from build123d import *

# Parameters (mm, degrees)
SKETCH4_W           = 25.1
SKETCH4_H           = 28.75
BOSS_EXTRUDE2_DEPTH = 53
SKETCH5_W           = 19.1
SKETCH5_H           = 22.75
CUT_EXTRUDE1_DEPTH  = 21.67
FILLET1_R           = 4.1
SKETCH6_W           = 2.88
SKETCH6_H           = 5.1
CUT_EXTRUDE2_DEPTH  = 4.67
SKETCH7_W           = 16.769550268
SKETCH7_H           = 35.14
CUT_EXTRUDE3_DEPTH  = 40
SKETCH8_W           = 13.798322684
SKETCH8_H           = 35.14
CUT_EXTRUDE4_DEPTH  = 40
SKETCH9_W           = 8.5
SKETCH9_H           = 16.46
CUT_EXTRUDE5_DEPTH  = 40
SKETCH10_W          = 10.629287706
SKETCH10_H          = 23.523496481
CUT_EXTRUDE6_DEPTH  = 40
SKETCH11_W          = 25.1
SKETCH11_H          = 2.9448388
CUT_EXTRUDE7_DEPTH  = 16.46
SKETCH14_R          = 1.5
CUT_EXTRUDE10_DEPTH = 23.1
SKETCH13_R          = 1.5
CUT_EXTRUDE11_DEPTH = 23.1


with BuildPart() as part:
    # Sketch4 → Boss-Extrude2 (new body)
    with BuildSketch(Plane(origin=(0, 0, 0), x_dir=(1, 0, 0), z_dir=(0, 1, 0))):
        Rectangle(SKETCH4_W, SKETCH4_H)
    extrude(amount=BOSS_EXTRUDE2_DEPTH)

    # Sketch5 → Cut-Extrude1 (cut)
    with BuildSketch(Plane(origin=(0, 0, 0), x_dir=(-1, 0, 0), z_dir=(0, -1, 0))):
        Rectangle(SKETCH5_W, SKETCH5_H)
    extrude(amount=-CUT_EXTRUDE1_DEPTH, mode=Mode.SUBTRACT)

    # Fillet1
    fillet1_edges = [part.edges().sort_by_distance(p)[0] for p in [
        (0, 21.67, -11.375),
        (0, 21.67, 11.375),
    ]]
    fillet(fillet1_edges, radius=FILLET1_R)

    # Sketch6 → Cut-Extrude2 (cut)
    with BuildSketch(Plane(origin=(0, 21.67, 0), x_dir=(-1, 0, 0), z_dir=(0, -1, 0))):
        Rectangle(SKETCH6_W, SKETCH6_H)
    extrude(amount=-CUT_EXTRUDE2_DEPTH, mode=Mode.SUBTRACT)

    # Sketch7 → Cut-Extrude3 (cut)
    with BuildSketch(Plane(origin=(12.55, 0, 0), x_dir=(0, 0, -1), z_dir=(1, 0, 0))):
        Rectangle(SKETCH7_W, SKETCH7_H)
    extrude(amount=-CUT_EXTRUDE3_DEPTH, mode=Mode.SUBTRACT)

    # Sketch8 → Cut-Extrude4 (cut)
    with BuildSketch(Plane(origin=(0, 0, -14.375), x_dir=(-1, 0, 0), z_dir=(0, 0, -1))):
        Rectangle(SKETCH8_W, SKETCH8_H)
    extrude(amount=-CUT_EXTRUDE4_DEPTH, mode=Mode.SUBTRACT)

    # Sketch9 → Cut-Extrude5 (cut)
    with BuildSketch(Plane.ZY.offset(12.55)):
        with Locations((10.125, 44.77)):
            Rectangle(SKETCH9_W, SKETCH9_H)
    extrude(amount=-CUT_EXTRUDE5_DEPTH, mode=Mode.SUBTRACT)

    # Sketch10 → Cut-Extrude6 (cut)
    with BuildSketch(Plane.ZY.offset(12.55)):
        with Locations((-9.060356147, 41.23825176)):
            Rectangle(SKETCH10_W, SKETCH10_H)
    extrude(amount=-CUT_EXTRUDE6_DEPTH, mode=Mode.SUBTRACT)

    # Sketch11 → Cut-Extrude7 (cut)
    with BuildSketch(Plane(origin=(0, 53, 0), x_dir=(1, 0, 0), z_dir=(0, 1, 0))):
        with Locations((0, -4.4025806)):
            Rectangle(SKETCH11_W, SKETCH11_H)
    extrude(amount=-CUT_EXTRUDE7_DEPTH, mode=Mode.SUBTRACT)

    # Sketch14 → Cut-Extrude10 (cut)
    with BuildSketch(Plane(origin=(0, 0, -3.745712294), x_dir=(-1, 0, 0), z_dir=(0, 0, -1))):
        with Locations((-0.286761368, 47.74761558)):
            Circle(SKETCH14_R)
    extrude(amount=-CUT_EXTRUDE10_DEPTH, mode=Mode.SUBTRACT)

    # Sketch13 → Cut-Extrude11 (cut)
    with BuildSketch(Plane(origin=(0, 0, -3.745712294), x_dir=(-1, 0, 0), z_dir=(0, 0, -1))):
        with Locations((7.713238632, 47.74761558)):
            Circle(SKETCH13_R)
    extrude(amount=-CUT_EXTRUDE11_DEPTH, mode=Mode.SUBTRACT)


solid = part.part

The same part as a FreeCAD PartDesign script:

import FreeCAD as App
import Part
import Sketcher
Q = App.Units.Quantity


def edges_at(feature, points):
    """Names of the edges that pass closest to the given points."""
    edges = feature.Shape.Edges
    near = lambda p: min(range(len(edges)), key=lambda i: edges[i].distToShape(Part.Vertex(*p))[0])
    return sorted({f"Edge{near(p) + 1}" for p in points})


def add_polygon(sketch, points):
    """Adds a closed chain of lines whose ends are joined by coincident constraints."""
    first, n = sketch.GeometryCount, len(points)
    for a, b in zip(points, points[1:] + points[:1]):
        sketch.addGeometry(Part.LineSegment(App.Vector(*a, 0), App.Vector(*b, 0)), False)
    for i in range(n):
        sketch.addConstraint(Sketcher.Constraint("Coincident", first + i, 2, first + (i + 1) % n, 1))

doc = App.newDocument("Part")
body = doc.addObject("PartDesign::Body", "Body")

# Sketch on XZ plane
sketch1 = body.newObject("Sketcher::SketchObject", "Sketch")
sketch1.AttachmentSupport = (doc.getObject("XZ_Plane"), [""])
sketch1.MapMode = "FlatFace"
add_polygon(sketch1, [(-13, -14), (-13, 14), (13, 14), (13, -14)])  # lines 0-3
sketch1.addConstraint([
    Sketcher.Constraint("Vertical", 0),
    Sketcher.Constraint("Horizontal", 1),
    Sketcher.Constraint("Vertical", 2),
    Sketcher.Constraint("Horizontal", 3),
    Sketcher.Constraint("Symmetric", 0, 2, 2, 2, -1, 1),
    Sketcher.Constraint("DistanceX", 1, 1, 1, 2, Q("25.1 mm")),
    Sketcher.Constraint("DistanceY", 0, 1, 0, 2, Q("28.75 mm")),
])
pad1 = body.newObject("PartDesign::Pad", "Pad")
pad1.Profile = sketch1
pad1.Length = 53
pad1.Reversed = True

# Sketch on XZ plane
sketch2 = body.newObject("Sketcher::SketchObject", "Sketch001")
sketch2.AttachmentSupport = (doc.getObject("XZ_Plane"), [""])
sketch2.MapMode = "FlatFace"
add_polygon(sketch2, [(10, -11), (10, 11), (-10, 11), (-10, -11)])  # lines 0-3
sketch2.addConstraint([
    Sketcher.Constraint("Vertical", 0),
    Sketcher.Constraint("Horizontal", 1),
    Sketcher.Constraint("Vertical", 2),
    Sketcher.Constraint("Horizontal", 3),
    Sketcher.Constraint("Symmetric", 0, 2, 2, 2, -1, 1),
    Sketcher.Constraint("DistanceX", 1, 2, 1, 1, Q("19.1 mm")),
    Sketcher.Constraint("DistanceY", 0, 1, 0, 2, Q("22.75 mm")),
])
pocket1 = body.newObject("PartDesign::Pocket", "Pocket")
pocket1.Profile = sketch2
pocket1.Length = 21.67
doc.recompute()

fillet = body.newObject("PartDesign::Fillet", "Fillet")
fillet.Base = (pocket1, edges_at(pocket1, [(0, 21.67, -11.375), (0, 21.67, 11.375)]))
fillet.Radius = 4.1

# Sketch on XZ plane
sketch3 = body.newObject("Sketcher::SketchObject", "Sketch002")
sketch3.AttachmentSupport = (doc.getObject("XZ_Plane"), [""])
sketch3.MapMode = "FlatFace"
sketch3.AttachmentOffset = App.Placement(App.Vector(0, 0, -21.67), App.Rotation())
add_polygon(sketch3, [(1.4, -2.5), (1.4, 2.5), (-1.4, 2.5), (-1.4, -2.5)])  # lines 0-3
sketch3.addConstraint([
    Sketcher.Constraint("Vertical", 0),
    Sketcher.Constraint("Horizontal", 1),
    Sketcher.Constraint("Vertical", 2),
    Sketcher.Constraint("Horizontal", 3),
    Sketcher.Constraint("Symmetric", 0, 2, 2, 2, -1, 1),
    Sketcher.Constraint("DistanceY", 0, 1, 0, 2, Q("5.1 mm")),
    Sketcher.Constraint("DistanceX", 1, 2, 1, 1, Q("2.88 mm")),
])
pocket2 = body.newObject("PartDesign::Pocket", "Pocket001")
pocket2.Profile = sketch3
pocket2.Length = 4.67

# Sketch on YZ plane
sketch4 = body.newObject("Sketcher::SketchObject", "Sketch003")
sketch4.AttachmentSupport = (doc.getObject("YZ_Plane"), [""])
sketch4.MapMode = "FlatFace"
sketch4.AttachmentOffset = App.Placement(App.Vector(0, 0, 12.55), App.Rotation())
add_polygon(sketch4, [(18, 8), (-18, 8), (-18, -8), (18, -8)])  # lines 0-3
sketch4.addConstraint([
    Sketcher.Constraint("Horizontal", 0),
    Sketcher.Constraint("Vertical", 1),
    Sketcher.Constraint("Horizontal", 2),
    Sketcher.Constraint("Vertical", 3),
    Sketcher.Constraint("Symmetric", 0, 2, 2, 2, -1, 1),
    Sketcher.Constraint("DistanceX", 0, 2, 0, 1, Q("35.14 mm")),
    Sketcher.Constraint("DistanceY", 1, 2, 1, 1, Q("16.76955 mm")),
])
pocket3 = body.newObject("PartDesign::Pocket", "Pocket002")
pocket3.Profile = sketch4
pocket3.Length = 40

# Sketch on XY plane
sketch5 = body.newObject("Sketcher::SketchObject", "Sketch004")
sketch5.AttachmentSupport = (doc.getObject("XY_Plane"), [""])
sketch5.MapMode = "FlatFace"
sketch5.AttachmentOffset = App.Placement(App.Vector(0, 0, -14.375), App.Rotation())
add_polygon(sketch5, [(7, 18), (7, -18), (-7, -18), (-7, 18)])  # lines 0-3
sketch5.addConstraint([
    Sketcher.Constraint("Vertical", 0),
    Sketcher.Constraint("Horizontal", 1),
    Sketcher.Constraint("Vertical", 2),
    Sketcher.Constraint("Horizontal", 3),
    Sketcher.Constraint("Symmetric", 0, 2, 2, 2, -1, 1),
    Sketcher.Constraint("DistanceY", 0, 2, 0, 1, Q("35.14 mm")),
    Sketcher.Constraint("DistanceX", 1, 2, 1, 1, Q("13.798323 mm")),
])
pocket4 = body.newObject("PartDesign::Pocket", "Pocket003")
pocket4.Profile = sketch5
pocket4.Length = 40
pocket4.Reversed = True

# Sketch on YZ plane
sketch6 = body.newObject("Sketcher::SketchObject", "Sketch005")
sketch6.AttachmentSupport = (doc.getObject("YZ_Plane"), [""])
sketch6.MapMode = "FlatFace"
sketch6.AttachmentOffset = App.Placement(App.Vector(0, 0, -12.55), App.Rotation())
add_polygon(sketch6, [(53, 6), (37, 6), (37, 14), (53, 14)])  # lines 0-3
sketch6.addConstraint([
    Sketcher.Constraint("Horizontal", 0),
    Sketcher.Constraint("Vertical", 1),
    Sketcher.Constraint("Horizontal", 2),
    Sketcher.Constraint("Vertical", 3),
    Sketcher.Constraint("DistanceY", 1, 1, 1, 2, Q("8.5 mm")),
    Sketcher.Constraint("DistanceX", -1, 1, 2, 2, Q("53 mm")),
    Sketcher.Constraint("DistanceX", 0, 2, 0, 1, Q("16.46 mm")),
    Sketcher.Constraint("DistanceY", -1, 1, 0, 2, Q("5.875 mm")),
])
pocket5 = body.newObject("PartDesign::Pocket", "Pocket004")
pocket5.Profile = sketch6
pocket5.Length = 40
pocket5.Reversed = True

# Sketch on YZ plane
sketch7 = body.newObject("Sketcher::SketchObject", "Sketch006")
sketch7.AttachmentSupport = (doc.getObject("YZ_Plane"), [""])
sketch7.MapMode = "FlatFace"
sketch7.AttachmentOffset = App.Placement(App.Vector(0, 0, -12.55), App.Rotation())
add_polygon(sketch7, [(53, -14), (29, -14), (29, -4), (53, -4)])  # lines 0-3
sketch7.addConstraint([
    Sketcher.Constraint("Horizontal", 0),
    Sketcher.Constraint("Vertical", 1),
    Sketcher.Constraint("Horizontal", 2),
    Sketcher.Constraint("Vertical", 3),
    Sketcher.Constraint("DistanceX", -1, 1, 2, 2, Q("53 mm")),
    Sketcher.Constraint("DistanceY", 0, 2, -1, 1, Q("14.375 mm")),
    Sketcher.Constraint("DistanceX", 0, 2, 0, 1, Q("23.523496 mm")),
    Sketcher.Constraint("DistanceY", 1, 1, 1, 2, Q("10.629288 mm")),
])
pocket6 = body.newObject("PartDesign::Pocket", "Pocket005")
pocket6.Profile = sketch7
pocket6.Length = 40
pocket6.Reversed = True

# Sketch on XZ plane
sketch8 = body.newObject("Sketcher::SketchObject", "Sketch007")
sketch8.AttachmentSupport = (doc.getObject("XZ_Plane"), [""])
sketch8.MapMode = "FlatFace"
sketch8.AttachmentOffset = App.Placement(App.Vector(0, 0, -53), App.Rotation())
add_polygon(sketch8, [(-12.6, 2.9), (-12.6, 5.9), (12.6, 5.9), (12.6, 2.9)])  # lines 0-3
sketch8.addConstraint([
    Sketcher.Constraint("Vertical", 0),
    Sketcher.Constraint("Horizontal", 1),
    Sketcher.Constraint("Vertical", 2),
    Sketcher.Constraint("Horizontal", 3),
    Sketcher.Constraint("DistanceX", 1, 1, 1, 2, Q("25.1 mm")),
    Sketcher.Constraint("DistanceX", 0, 2, -1, 1, Q("12.55 mm")),
    Sketcher.Constraint("DistanceY", -1, 1, 0, 2, Q("5.875 mm")),
    Sketcher.Constraint("DistanceY", 0, 1, 0, 2, Q("2.944839 mm")),
])
pocket7 = body.newObject("PartDesign::Pocket", "Pocket006")
pocket7.Profile = sketch8
pocket7.Length = 16.46
pocket7.Reversed = True

# Sketch on XY plane
sketch9 = body.newObject("Sketcher::SketchObject", "Sketch008")
sketch9.AttachmentSupport = (doc.getObject("XY_Plane"), [""])
sketch9.MapMode = "FlatFace"
sketch9.AttachmentOffset = App.Placement(App.Vector(0, 0, -3.745712), App.Rotation())
sketch9.addGeometry(Part.Circle(App.Vector(0.3, 47.7, 0), App.Vector(0, 0, 1), 1.5), False)
sketch9.addConstraint([
    Sketcher.Constraint("Diameter", 0, Q("3 mm")),
    Sketcher.Constraint("DistanceX", -1, 1, 0, 3, Q("0.286761 mm")),
    Sketcher.Constraint("DistanceY", -1, 1, 0, 3, Q("47.747616 mm")),
])
pocket8 = body.newObject("PartDesign::Pocket", "Pocket007")
pocket8.Profile = sketch9
pocket8.Length = 23.1
pocket8.Reversed = True

# Sketch on XY plane
sketch10 = body.newObject("Sketcher::SketchObject", "Sketch009")
sketch10.AttachmentSupport = (doc.getObject("XY_Plane"), [""])
sketch10.MapMode = "FlatFace"
sketch10.AttachmentOffset = App.Placement(App.Vector(0, 0, -3.745712), App.Rotation())
sketch10.addGeometry(Part.Circle(App.Vector(-7.7, 47.7, 0), App.Vector(0, 0, 1), 1.5), False)
sketch10.addConstraint([
    Sketcher.Constraint("Diameter", 0, Q("3 mm")),
    Sketcher.Constraint("DistanceX", 0, 3, -1, 1, Q("7.713239 mm")),
    Sketcher.Constraint("DistanceY", -1, 1, 0, 3, Q("47.747616 mm")),
])
pocket9 = body.newObject("PartDesign::Pocket", "Pocket008")
pocket9.Profile = sketch10
pocket9.Length = 23.1
pocket9.Reversed = True

doc.recompute()
